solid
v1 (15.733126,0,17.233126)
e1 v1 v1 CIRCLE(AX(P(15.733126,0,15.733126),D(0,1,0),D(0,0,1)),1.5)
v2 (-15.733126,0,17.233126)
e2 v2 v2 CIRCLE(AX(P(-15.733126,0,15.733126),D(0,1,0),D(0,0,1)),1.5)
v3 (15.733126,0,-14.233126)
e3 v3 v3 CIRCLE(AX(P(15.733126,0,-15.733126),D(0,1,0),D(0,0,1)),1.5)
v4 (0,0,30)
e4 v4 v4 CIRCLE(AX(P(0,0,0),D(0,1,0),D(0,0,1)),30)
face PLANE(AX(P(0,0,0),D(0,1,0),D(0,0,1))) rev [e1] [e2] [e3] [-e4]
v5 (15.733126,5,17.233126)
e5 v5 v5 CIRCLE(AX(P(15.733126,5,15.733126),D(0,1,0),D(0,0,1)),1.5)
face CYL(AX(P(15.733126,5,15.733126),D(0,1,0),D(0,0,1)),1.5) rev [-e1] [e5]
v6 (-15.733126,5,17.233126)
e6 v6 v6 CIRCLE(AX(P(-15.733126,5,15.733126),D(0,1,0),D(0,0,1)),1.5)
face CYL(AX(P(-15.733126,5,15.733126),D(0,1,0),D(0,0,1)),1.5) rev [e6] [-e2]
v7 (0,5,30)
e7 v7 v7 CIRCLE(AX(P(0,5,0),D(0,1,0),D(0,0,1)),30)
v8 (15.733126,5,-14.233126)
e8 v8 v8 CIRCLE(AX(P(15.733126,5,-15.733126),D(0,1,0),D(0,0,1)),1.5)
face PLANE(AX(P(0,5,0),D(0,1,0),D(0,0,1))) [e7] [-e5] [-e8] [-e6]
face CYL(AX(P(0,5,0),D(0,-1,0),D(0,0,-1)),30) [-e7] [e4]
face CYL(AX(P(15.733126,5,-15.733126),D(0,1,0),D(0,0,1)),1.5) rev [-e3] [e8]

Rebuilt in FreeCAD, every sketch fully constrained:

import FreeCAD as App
import Part
import Sketcher
from FreeCAD import Vector

doc = App.newDocument("Part")
params = doc.addObject("Spreadsheet::Sheet", "Params")
for row, (alias, value) in enumerate([
    ("sketch1_diameter", "60 mm"),
    ("pad1_length", "5 mm"),
    ("sketch2_diameter", "3 mm"),
    ("hole_diameter", "3 mm"),
], start=1):
    params.set(f"A{row}", alias)
    params.set(f"B{row}", "=" + value)
    params.setAlias(f"B{row}", alias)

body = doc.addObject("PartDesign::Body", "Body")

# Sketch on XZ plane
sketch1 = body.newObject("Sketcher::SketchObject", "Sketch")
sketch1.AttachmentSupport = (doc.getObject("XZ_Plane"), [""])
sketch1.MapMode = "FlatFace"
sketch1.addGeometry(Part.Circle(Vector(0, 0, 0), Vector(0, 0, 1), 30), False)
sketch1.addConstraint([
    Sketcher.Constraint("Coincident", 0, 3, -1, 1),
    Sketcher.Constraint("Diameter", 0, 60.0),
])
sketch1.setExpression("Constraints[1]", "Params.sketch1_diameter")
pad1 = body.newObject("PartDesign::Pad", "Pad")
pad1.Profile = sketch1
pad1.setExpression("Length", "Params.pad1_length")
pad1.Reversed = True

# Sketch on XZ plane
sketch2 = body.newObject("Sketcher::SketchObject", "Sketch001")
sketch2.AttachmentSupport = (doc.getObject("XZ_Plane"), [""])
sketch2.MapMode = "FlatFace"
sketch2.AttachmentOffset = App.Placement(Vector(0, 0, -5), App.Rotation())
sketch2.addGeometry([
    Part.Circle(Vector(-15.7, 15.7, 0), Vector(0, 0, 1), 1.5),
    Part.Circle(Vector(15.7, 15.7, 0), Vector(0, 0, 1), 1.5),
    Part.Circle(Vector(15.7, -15.7, 0), Vector(0, 0, 1), 1.5),
], False)
sketch2.addConstraint([
    Sketcher.Constraint("Equal", 0, 1),
    Sketcher.Constraint("Equal", 1, 2),
    Sketcher.Constraint("Symmetric", 0, 3, 2, 3, -1, 1),
    Sketcher.Constraint("Symmetric", 0, 3, 1, 3, -2),
    Sketcher.Constraint("Diameter", 0, 3.0),
    Sketcher.Constraint("DistanceX", 0, 3, 1, 3, 31.466252),
    Sketcher.Constraint("DistanceY", 2, 3, 1, 3, 31.466252),
])
sketch2.setExpression("Constraints[4]", "Params.sketch2_diameter")
doc.recompute()
hole = body.newObject("PartDesign::Hole", "Hole")
hole.Profile = sketch2
hole.ThreadType = "None"
hole.setExpression("Diameter", "Params.hole_diameter")
hole.DepthType = "ThroughAll"
hole.Reversed = True

doc.recompute()
